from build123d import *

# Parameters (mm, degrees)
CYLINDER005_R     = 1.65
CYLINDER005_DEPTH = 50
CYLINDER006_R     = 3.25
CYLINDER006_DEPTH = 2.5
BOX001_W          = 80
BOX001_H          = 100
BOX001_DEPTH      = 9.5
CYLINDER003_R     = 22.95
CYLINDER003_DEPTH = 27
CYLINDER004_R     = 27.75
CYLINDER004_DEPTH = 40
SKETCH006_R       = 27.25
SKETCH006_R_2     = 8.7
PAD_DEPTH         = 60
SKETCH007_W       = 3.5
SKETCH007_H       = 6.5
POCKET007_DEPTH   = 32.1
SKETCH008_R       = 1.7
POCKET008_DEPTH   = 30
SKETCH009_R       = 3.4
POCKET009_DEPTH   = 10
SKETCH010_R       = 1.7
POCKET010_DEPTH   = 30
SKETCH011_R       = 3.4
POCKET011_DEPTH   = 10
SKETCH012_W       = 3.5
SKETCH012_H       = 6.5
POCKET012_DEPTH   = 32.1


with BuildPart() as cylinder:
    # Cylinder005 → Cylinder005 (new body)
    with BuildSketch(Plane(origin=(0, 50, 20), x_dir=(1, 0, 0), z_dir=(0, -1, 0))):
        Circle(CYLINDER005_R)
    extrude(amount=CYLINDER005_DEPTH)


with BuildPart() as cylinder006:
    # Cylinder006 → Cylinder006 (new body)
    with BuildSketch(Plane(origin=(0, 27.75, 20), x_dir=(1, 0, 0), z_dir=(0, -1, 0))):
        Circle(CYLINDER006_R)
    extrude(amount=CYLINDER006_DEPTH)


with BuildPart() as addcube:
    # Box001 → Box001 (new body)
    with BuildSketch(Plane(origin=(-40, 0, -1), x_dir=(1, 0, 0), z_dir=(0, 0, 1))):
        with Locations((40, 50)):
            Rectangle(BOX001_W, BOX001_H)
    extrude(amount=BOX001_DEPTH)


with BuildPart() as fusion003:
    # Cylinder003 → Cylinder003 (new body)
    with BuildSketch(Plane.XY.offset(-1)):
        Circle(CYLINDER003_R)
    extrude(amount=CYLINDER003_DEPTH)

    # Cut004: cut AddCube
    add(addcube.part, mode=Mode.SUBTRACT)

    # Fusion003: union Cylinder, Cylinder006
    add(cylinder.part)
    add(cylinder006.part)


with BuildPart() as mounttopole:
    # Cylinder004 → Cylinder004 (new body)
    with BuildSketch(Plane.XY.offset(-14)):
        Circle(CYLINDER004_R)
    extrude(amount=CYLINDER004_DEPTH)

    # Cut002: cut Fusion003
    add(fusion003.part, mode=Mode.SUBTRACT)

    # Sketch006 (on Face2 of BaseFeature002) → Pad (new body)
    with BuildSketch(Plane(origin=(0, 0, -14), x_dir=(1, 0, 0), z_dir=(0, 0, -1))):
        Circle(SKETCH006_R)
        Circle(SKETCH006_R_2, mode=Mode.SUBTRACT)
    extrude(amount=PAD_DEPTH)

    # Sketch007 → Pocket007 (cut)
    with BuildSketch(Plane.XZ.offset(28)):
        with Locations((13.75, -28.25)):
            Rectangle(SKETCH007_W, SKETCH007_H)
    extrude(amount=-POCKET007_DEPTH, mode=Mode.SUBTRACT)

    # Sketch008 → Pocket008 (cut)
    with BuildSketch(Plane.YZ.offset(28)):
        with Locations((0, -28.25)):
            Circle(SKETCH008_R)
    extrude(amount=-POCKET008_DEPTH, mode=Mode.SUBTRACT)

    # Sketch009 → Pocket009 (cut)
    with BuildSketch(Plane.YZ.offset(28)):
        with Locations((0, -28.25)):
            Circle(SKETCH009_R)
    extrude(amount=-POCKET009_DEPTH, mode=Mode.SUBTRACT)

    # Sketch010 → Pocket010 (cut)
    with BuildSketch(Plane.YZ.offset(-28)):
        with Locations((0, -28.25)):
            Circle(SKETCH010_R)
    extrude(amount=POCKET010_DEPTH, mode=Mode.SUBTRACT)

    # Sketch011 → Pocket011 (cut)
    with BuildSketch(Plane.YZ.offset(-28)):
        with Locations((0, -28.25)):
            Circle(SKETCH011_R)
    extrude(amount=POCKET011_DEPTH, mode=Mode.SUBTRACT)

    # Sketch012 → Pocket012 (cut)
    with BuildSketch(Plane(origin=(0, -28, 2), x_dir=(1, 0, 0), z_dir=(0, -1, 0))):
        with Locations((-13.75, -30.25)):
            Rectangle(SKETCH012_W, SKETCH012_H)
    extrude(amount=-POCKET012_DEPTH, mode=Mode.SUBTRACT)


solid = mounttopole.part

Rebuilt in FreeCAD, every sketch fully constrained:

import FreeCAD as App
import Part
import Sketcher
from FreeCAD import Vector
Q = App.Units.Quantity

doc = App.newDocument("Part")
body = doc.addObject("PartDesign::Body", "Body")

# Sketch on XZ plane
sketch1 = body.newObject("Sketcher::SketchObject", "Sketch")
sketch1.AttachmentSupport = (doc.getObject("XZ_Plane"), [""])
sketch1.MapMode = "FlatFace"
sketch1.AttachmentOffset = App.Placement(Vector(0, 0, -50), App.Rotation())
sketch1.addGeometry(Part.Circle(Vector(0, 20, 0), Vector(0, 0, 1), 1.6), False)
sketch1.addConstraint([
    Sketcher.Constraint("PointOnObject", 0, 3, -2),
    Sketcher.Constraint("Diameter", 0, Q("3.3 mm")),
    Sketcher.Constraint("DistanceY", -1, 1, 0, 3, Q("20 mm")),
])
pad1 = body.newObject("PartDesign::Pad", "Pad")
pad1.Profile = sketch1
pad1.Length = 50
body2 = doc.addObject("PartDesign::Body", "Body001")

# Sketch on XZ plane
sketch2 = body2.newObject("Sketcher::SketchObject", "Sketch001")
sketch2.AttachmentSupport = (doc.getObject("XZ_Plane001"), [""])
sketch2.MapMode = "FlatFace"
sketch2.AttachmentOffset = App.Placement(Vector(0, 0, -27.75), App.Rotation())
sketch2.addGeometry(Part.Circle(Vector(0, 20, 0), Vector(0, 0, 1), 3.2), False)
sketch2.addConstraint([
    Sketcher.Constraint("PointOnObject", 0, 3, -2),
    Sketcher.Constraint("Diameter", 0, Q("6.5 mm")),
    Sketcher.Constraint("DistanceY", -1, 1, 0, 3, Q("20 mm")),
])
pad2 = body2.newObject("PartDesign::Pad", "Pad001")
pad2.Profile = sketch2
pad2.Length = 2.5
body3 = doc.addObject("PartDesign::Body", "Body002")

# Sketch on XY plane
sketch3 = body3.newObject("Sketcher::SketchObject", "Sketch002")
sketch3.AttachmentSupport = (doc.getObject("XY_Plane002"), [""])
sketch3.MapMode = "FlatFace"
sketch3.AttachmentOffset = App.Placement(Vector(0, 0, -1), App.Rotation())
sketch3.addGeometry([
    Part.LineSegment(Vector(-40, 100, 0), Vector(-40, 0, 0)),
    Part.LineSegment(Vector(-40, 0, 0), Vector(40, 0, 0)),
    Part.LineSegment(Vector(40, 0, 0), Vector(40, 100, 0)),
    Part.LineSegment(Vector(40, 100, 0), Vector(-40, 100, 0)),
], False)
sketch3.addConstraint([
    Sketcher.Constraint("Coincident", 0, 2, 1, 1),
    Sketcher.Constraint("Coincident", 1, 2, 2, 1),
    Sketcher.Constraint("Coincident", 2, 2, 3, 1),
    Sketcher.Constraint("Coincident", 3, 2, 0, 1),
    Sketcher.Constraint("Vertical", 0),
    Sketcher.Constraint("Horizontal", 1),
    Sketcher.Constraint("Vertical", 2),
    Sketcher.Constraint("Horizontal", 3),
    Sketcher.Constraint("Symmetric", 0, 2, 1, 2, -1, 1),
    Sketcher.Constraint("DistanceX", 1, 1, 1, 2, Q("80 mm")),
    Sketcher.Constraint("DistanceY", 0, 2, 0, 1, Q("100 mm")),
])
pad3 = body3.newObject("PartDesign::Pad", "Pad002")
pad3.Profile = sketch3
pad3.Length = 9.5
body4 = doc.addObject("PartDesign::Body", "Body003")

# Sketch on XY plane
sketch4 = body4.newObject("Sketcher::SketchObject", "Sketch003")
sketch4.AttachmentSupport = (doc.getObject("XY_Plane003"), [""])
sketch4.MapMode = "FlatFace"
sketch4.AttachmentOffset = App.Placement(Vector(0, 0, -1), App.Rotation())
sketch4.addGeometry(Part.Circle(Vector(0, 0, 0), Vector(0, 0, 1), 23), False)
sketch4.addConstraint([
    Sketcher.Constraint("Coincident", 0, 3, -1, 1),
    Sketcher.Constraint("Diameter", 0, Q("45.9 mm")),
])
pad4 = body4.newObject("PartDesign::Pad", "Pad003")
pad4.Profile = sketch4
pad4.Length = 27
doc.recompute()

boolean = body4.newObject("PartDesign::Boolean", "Boolean")
boolean.Type = "Cut"
boolean.addObjects([body3])
doc.recompute()

boolean2 = body4.newObject("PartDesign::Boolean", "Boolean001")
boolean2.Type = "Fuse"
boolean2.addObjects([body])
doc.recompute()

boolean3 = body4.newObject("PartDesign::Boolean", "Boolean002")
boolean3.Type = "Fuse"
boolean3.addObjects([body2])
body5 = doc.addObject("PartDesign::Body", "Body004")

# Sketch on XY plane
sketch5 = body5.newObject("Sketcher::SketchObject", "Sketch004")
sketch5.AttachmentSupport = (doc.getObject("XY_Plane004"), [""])
sketch5.MapMode = "FlatFace"
sketch5.AttachmentOffset = App.Placement(Vector(0, 0, -14), App.Rotation())
sketch5.addGeometry(Part.Circle(Vector(0, 0, 0), Vector(0, 0, 1), 28), False)
sketch5.addConstraint([
    Sketcher.Constraint("Coincident", 0, 3, -1, 1),
    Sketcher.Constraint("Diameter", 0, Q("55.5 mm")),
])
pad5 = body5.newObject("PartDesign::Pad", "Pad004")
pad5.Profile = sketch5
pad5.Length = 40
doc.recompute()

boolean4 = body5.newObject("PartDesign::Boolean", "Boolean003")
boolean4.Type = "Cut"
boolean4.addObjects([body4])

# Sketch on XY plane
sketch6 = body5.newObject("Sketcher::SketchObject", "Sketch005")
sketch6.AttachmentSupport = (doc.getObject("XY_Plane004"), [""])
sketch6.MapMode = "FlatFace"
sketch6.AttachmentOffset = App.Placement(Vector(0, 0, -14), App.Rotation())
sketch6.addGeometry([
    Part.Circle(Vector(0, 0, 0), Vector(0, 0, 1), 27),
    Part.Circle(Vector(0, 0, 0), Vector(0, 0, 1), 9),
], False)
sketch6.addConstraint([
    Sketcher.Constraint("Coincident", 0, 3, -1, 1),
    Sketcher.Constraint("Coincident", 1, 3, -1, 1),
    Sketcher.Constraint("Diameter", 0, Q("54.5 mm")),
    Sketcher.Constraint("Diameter", 1, Q("17.4 mm")),
])
pad6 = body5.newObject("PartDesign::Pad", "Pad005")
pad6.Profile = sketch6
pad6.Length = 60
pad6.Reversed = True

# Sketch on XZ plane
sketch7 = body5.newObject("Sketcher::SketchObject", "Sketch006")
sketch7.AttachmentSupport = (doc.getObject("XZ_Plane004"), [""])
sketch7.MapMode = "FlatFace"
sketch7.AttachmentOffset = App.Placement(Vector(0, 0, 28), App.Rotation())
sketch7.addGeometry([
    Part.LineSegment(Vector(12, -25, 0), Vector(12, -31.5, 0)),
    Part.LineSegment(Vector(12, -31.5, 0), Vector(15.5, -31.5, 0)),
    Part.LineSegment(Vector(15.5, -31.5, 0), Vector(15.5, -25, 0)),
    Part.LineSegment(Vector(15.5, -25, 0), Vector(12, -25, 0)),
], False)
sketch7.addConstraint([
    Sketcher.Constraint("Coincident", 0, 2, 1, 1),
    Sketcher.Constraint("Coincident", 1, 2, 2, 1),
    Sketcher.Constraint("Coincident", 2, 2, 3, 1),
    Sketcher.Constraint("Coincident", 3, 2, 0, 1),
    Sketcher.Constraint("Vertical", 0),
    Sketcher.Constraint("Horizontal", 1),
    Sketcher.Constraint("Vertical", 2),
    Sketcher.Constraint("Horizontal", 3),
    Sketcher.Constraint("DistanceX", 1, 1, 1, 2, Q("3.5 mm")),
    Sketcher.Constraint("DistanceY", 0, 2, 0, 1, Q("6.5 mm")),
    Sketcher.Constraint("DistanceX", -1, 1, 0, 2, Q("12 mm")),
    Sketcher.Constraint("DistanceY", 2, 2, -1, 1, Q("25 mm")),
])
pocket1 = body5.newObject("PartDesign::Pocket", "Pocket")
pocket1.Profile = sketch7
pocket1.Length = 32.1

# Sketch on YZ plane
sketch8 = body5.newObject("Sketcher::SketchObject", "Sketch007")
sketch8.AttachmentSupport = (doc.getObject("YZ_Plane004"), [""])
sketch8.MapMode = "FlatFace"
sketch8.AttachmentOffset = App.Placement(Vector(0, 0, 28), App.Rotation())
sketch8.addGeometry(Part.Circle(Vector(0, -28.2, 0), Vector(0, 0, 1), 1.7), False)
sketch8.addConstraint([
    Sketcher.Constraint("PointOnObject", 0, 3, -2),
    Sketcher.Constraint("Diameter", 0, Q("3.4 mm")),
    Sketcher.Constraint("DistanceY", 0, 3, -1, 1, Q("28.25 mm")),
])
pocket2 = body5.newObject("PartDesign::Pocket", "Pocket001")
pocket2.Profile = sketch8
pocket2.Length = 30

# Sketch on YZ plane
sketch9 = body5.newObject("Sketcher::SketchObject", "Sketch008")
sketch9.AttachmentSupport = (doc.getObject("YZ_Plane004"), [""])
sketch9.MapMode = "FlatFace"
sketch9.AttachmentOffset = App.Placement(Vector(0, 0, 28), App.Rotation())
sketch9.addGeometry(Part.Circle(Vector(0, -28.2, 0), Vector(0, 0, 1), 3.4), False)
sketch9.addConstraint([
    Sketcher.Constraint("PointOnObject", 0, 3, -2),
    Sketcher.Constraint("Diameter", 0, Q("6.8 mm")),
    Sketcher.Constraint("DistanceY", 0, 3, -1, 1, Q("28.25 mm")),
])
pocket3 = body5.newObject("PartDesign::Pocket", "Pocket002")
pocket3.Profile = sketch9
pocket3.Length = 10

# Sketch on YZ plane
sketch10 = body5.newObject("Sketcher::SketchObject", "Sketch009")
sketch10.AttachmentSupport = (doc.getObject("YZ_Plane004"), [""])
sketch10.MapMode = "FlatFace"
sketch10.AttachmentOffset = App.Placement(Vector(0, 0, -28), App.Rotation())
sketch10.addGeometry(Part.Circle(Vector(0, -28.2, 0), Vector(0, 0, 1), 1.7), False)
sketch10.addConstraint([
    Sketcher.Constraint("PointOnObject", 0, 3, -2),
    Sketcher.Constraint("Diameter", 0, Q("3.4 mm")),
    Sketcher.Constraint("DistanceY", 0, 3, -1, 1, Q("28.25 mm")),
])
pocket4 = body5.newObject("PartDesign::Pocket", "Pocket003")
pocket4.Profile = sketch10
pocket4.Length = 30
pocket4.Reversed = True

# Sketch on YZ plane
sketch11 = body5.newObject("Sketcher::SketchObject", "Sketch010")
sketch11.AttachmentSupport = (doc.getObject("YZ_Plane004"), [""])
sketch11.MapMode = "FlatFace"
sketch11.AttachmentOffset = App.Placement(Vector(0, 0, -28), App.Rotation())
sketch11.addGeometry(Part.Circle(Vector(0, -28.2, 0), Vector(0, 0, 1), 3.4), False)
sketch11.addConstraint([
    Sketcher.Constraint("PointOnObject", 0, 3, -2),
    Sketcher.Constraint("Diameter", 0, Q("6.8 mm")),
    Sketcher.Constraint("DistanceY", 0, 3, -1, 1, Q("28.25 mm")),
])
pocket5 = body5.newObject("PartDesign::Pocket", "Pocket004")
pocket5.Profile = sketch11
pocket5.Length = 10
pocket5.Reversed = True

# Sketch on XZ plane
sketch12 = body5.newObject("Sketcher::SketchObject", "Sketch011")
sketch12.AttachmentSupport = (doc.getObject("XZ_Plane004"), [""])
sketch12.MapMode = "FlatFace"
sketch12.AttachmentOffset = App.Placement(Vector(0, 0, 28), App.Rotation())
sketch12.addGeometry([
    Part.LineSegment(Vector(-15.5, -25, 0), Vector(-15.5, -31.5, 0)),
    Part.LineSegment(Vector(-15.5, -31.5, 0), Vector(-12, -31.5, 0)),
    Part.LineSegment(Vector(-12, -31.5, 0), Vector(-12, -25, 0)),
    Part.LineSegment(Vector(-12, -25, 0), Vector(-15.5, -25, 0)),
], False)
sketch12.addConstraint([
    Sketcher.Constraint("Coincident", 0, 2, 1, 1),
    Sketcher.Constraint("Coincident", 1, 2, 2, 1),
    Sketcher.Constraint("Coincident", 2, 2, 3, 1),
    Sketcher.Constraint("Coincident", 3, 2, 0, 1),
    Sketcher.Constraint("Vertical", 0),
    Sketcher.Constraint("Horizontal", 1),
    Sketcher.Constraint("Vertical", 2),
    Sketcher.Constraint("Horizontal", 3),
    Sketcher.Constraint("DistanceX", 1, 1, 1, 2, Q("3.5 mm")),
    Sketcher.Constraint("DistanceY", 0, 2, 0, 1, Q("6.5 mm")),
    Sketcher.Constraint("DistanceX", 1, 2, -1, 1, Q("12 mm")),
    Sketcher.Constraint("DistanceY", 2, 2, -1, 1, Q("25 mm")),
])
pocket6 = body5.newObject("PartDesign::Pocket", "Pocket005")
pocket6.Profile = sketch12
pocket6.Length = 32.1

doc.recompute()
